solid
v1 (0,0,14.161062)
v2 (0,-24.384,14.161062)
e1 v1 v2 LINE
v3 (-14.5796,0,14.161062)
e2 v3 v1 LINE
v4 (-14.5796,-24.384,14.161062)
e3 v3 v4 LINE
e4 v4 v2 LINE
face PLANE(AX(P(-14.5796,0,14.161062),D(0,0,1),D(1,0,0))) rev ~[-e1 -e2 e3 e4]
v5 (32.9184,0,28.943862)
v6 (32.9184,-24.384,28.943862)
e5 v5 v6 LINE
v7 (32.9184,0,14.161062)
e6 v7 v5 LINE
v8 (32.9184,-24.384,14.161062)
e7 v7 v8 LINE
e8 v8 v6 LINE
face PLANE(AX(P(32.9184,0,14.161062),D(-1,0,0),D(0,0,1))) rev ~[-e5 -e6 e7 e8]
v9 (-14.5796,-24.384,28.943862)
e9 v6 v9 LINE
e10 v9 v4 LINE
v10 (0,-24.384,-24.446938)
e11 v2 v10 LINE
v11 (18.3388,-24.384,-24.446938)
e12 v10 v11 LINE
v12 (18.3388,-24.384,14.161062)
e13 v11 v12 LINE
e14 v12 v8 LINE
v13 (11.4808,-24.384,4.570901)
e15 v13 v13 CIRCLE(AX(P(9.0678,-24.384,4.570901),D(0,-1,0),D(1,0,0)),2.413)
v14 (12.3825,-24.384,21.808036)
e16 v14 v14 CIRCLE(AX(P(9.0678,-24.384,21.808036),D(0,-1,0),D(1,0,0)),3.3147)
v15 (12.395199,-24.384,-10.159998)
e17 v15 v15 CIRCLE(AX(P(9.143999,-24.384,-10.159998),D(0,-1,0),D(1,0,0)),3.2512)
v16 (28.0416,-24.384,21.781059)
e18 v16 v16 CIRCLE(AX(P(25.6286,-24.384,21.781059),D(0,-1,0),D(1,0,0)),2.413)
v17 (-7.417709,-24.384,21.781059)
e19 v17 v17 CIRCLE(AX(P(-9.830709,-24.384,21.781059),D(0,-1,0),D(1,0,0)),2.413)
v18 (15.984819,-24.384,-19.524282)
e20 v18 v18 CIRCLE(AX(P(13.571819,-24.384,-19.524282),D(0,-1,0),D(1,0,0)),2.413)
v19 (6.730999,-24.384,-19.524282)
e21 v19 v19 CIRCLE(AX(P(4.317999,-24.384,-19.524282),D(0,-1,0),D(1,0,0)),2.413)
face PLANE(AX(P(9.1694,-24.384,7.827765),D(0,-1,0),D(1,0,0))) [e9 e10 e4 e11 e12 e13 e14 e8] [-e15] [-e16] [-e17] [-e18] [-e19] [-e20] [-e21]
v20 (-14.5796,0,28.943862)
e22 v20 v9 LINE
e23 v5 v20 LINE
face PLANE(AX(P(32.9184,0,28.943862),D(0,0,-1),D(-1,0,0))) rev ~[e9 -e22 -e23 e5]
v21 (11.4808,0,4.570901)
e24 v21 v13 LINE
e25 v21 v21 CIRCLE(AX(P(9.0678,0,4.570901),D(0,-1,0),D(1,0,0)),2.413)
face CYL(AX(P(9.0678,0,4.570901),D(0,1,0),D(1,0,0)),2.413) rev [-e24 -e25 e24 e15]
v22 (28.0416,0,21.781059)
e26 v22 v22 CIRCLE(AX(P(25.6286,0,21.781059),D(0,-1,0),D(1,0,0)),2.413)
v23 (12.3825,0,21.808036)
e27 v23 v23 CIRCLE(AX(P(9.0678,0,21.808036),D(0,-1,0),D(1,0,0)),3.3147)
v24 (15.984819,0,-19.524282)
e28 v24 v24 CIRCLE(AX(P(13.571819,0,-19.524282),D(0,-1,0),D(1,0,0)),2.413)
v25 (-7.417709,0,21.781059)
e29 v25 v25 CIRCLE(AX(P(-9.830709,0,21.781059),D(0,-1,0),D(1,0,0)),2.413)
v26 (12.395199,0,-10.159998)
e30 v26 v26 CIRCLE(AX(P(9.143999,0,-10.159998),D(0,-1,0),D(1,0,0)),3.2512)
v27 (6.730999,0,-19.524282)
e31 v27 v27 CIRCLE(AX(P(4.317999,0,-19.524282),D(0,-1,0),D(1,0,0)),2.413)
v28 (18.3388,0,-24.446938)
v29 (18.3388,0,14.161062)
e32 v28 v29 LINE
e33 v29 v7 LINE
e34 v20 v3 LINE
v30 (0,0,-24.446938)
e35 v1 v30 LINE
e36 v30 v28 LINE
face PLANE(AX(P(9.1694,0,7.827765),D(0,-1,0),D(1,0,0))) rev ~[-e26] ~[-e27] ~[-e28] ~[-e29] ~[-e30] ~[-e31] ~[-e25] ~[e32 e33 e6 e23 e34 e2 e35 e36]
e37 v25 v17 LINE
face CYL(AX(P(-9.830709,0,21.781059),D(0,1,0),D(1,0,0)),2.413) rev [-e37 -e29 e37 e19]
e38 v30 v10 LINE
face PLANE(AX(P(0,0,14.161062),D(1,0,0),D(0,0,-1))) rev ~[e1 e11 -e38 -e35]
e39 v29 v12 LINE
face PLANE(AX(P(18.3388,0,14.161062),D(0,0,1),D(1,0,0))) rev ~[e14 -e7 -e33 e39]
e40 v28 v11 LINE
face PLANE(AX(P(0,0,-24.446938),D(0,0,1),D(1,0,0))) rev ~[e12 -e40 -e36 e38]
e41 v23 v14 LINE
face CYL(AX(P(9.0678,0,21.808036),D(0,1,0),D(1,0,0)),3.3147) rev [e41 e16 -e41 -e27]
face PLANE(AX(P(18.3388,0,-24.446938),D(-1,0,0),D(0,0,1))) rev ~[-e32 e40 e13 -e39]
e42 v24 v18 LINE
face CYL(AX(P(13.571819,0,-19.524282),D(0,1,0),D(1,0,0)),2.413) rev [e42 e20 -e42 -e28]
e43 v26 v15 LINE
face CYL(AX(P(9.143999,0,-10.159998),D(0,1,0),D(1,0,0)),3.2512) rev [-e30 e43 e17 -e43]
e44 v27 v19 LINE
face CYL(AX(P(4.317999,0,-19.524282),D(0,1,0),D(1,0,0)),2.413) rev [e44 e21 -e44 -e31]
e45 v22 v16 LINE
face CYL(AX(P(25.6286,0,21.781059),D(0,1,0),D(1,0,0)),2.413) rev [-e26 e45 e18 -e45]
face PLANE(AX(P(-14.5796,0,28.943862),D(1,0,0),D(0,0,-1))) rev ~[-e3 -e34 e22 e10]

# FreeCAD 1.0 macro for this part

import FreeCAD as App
import Part
import Sketcher
Q = App.Units.Quantity

doc = App.newDocument("Part")
body = doc.addObject("PartDesign::Body", "Body")

# Sketch on XZ plane
sketch1 = doc.addObject("Sketcher::SketchObject", "Sketch")
body.addObject(sketch1)
sketch1.AttachmentSupport = (doc.XZ_Plane, [""])
sketch1.MapMode = "FlatFace"
sketch1.addGeometry([
    Part.LineSegment(App.Vector(32.9, 28.9, 0), App.Vector(-14.6, 28.9, 0)),  # 0
    Part.LineSegment(App.Vector(-14.6, 28.9, 0), App.Vector(-14.6, 14.2, 0)),  # 1
    Part.LineSegment(App.Vector(-14.6, 14.2, 0), App.Vector(0, 14.2, 0)),  # 2
    Part.LineSegment(App.Vector(0, 14.2, 0), App.Vector(0, -24.4, 0)),  # 3
    Part.LineSegment(App.Vector(0, -24.4, 0), App.Vector(18.3, -24.4, 0)),  # 4
    Part.LineSegment(App.Vector(18.3, -24.4, 0), App.Vector(18.3, 14.2, 0)),  # 5
    Part.LineSegment(App.Vector(18.3, 14.2, 0), App.Vector(32.9, 14.2, 0)),  # 6
    Part.LineSegment(App.Vector(32.9, 14.2, 0), App.Vector(32.9, 28.9, 0)),  # 7
    Part.Circle(App.Vector(4.3, -19.5, 0), App.Vector(0, 0, 1), 2.4),  # 8
    Part.Circle(App.Vector(13.6, -19.5, 0), App.Vector(0, 0, 1), 2.4),  # 9
    Part.Circle(App.Vector(9.1, -10.2, 0), App.Vector(0, 0, 1), 3.3),  # 10
    Part.Circle(App.Vector(-9.8, 21.8, 0), App.Vector(0, 0, 1), 2.4),  # 11
    Part.Circle(App.Vector(9.1, 4.6, 0), App.Vector(0, 0, 1), 2.4),  # 12
    Part.Circle(App.Vector(9.1, 21.8, 0), App.Vector(0, 0, 1), 3.3),  # 13
    Part.Circle(App.Vector(25.6, 21.8, 0), App.Vector(0, 0, 1), 2.4),  # 14
], False)
sketch1.addConstraint([
    Sketcher.Constraint("Coincident", 0, 2, 1, 1),
    Sketcher.Constraint("Coincident", 1, 2, 2, 1),
    Sketcher.Constraint("Coincident", 2, 2, 3, 1),
    Sketcher.Constraint("Coincident", 3, 2, 4, 1),
    Sketcher.Constraint("Coincident", 4, 2, 5, 1),
    Sketcher.Constraint("Coincident", 5, 2, 6, 1),
    Sketcher.Constraint("Coincident", 6, 2, 7, 1),
    Sketcher.Constraint("Coincident", 7, 2, 0, 1),
    Sketcher.Constraint("Horizontal", 0),
    Sketcher.Constraint("Vertical", 1),
    Sketcher.Constraint("Horizontal", 2),
    Sketcher.Constraint("Vertical", 3),
    Sketcher.Constraint("Horizontal", 4),
    Sketcher.Constraint("Vertical", 5),
    Sketcher.Constraint("Horizontal", 6),
    Sketcher.Constraint("Vertical", 7),
    Sketcher.Constraint("Equal", 8, 9),
    Sketcher.Constraint("Equal", 9, 11),
    Sketcher.Constraint("Equal", 11, 12),
    Sketcher.Constraint("Equal", 12, 14),
    Sketcher.Constraint("PointOnObject", 2, 2, -2),
    Sketcher.Constraint("Horizontal", 8, 3, 9, 3),
    Sketcher.Constraint("Horizontal", 11, 3, 14, 3),
    Sketcher.Constraint("Horizontal", 2, 2, 5, 2),
    Sketcher.Constraint("Vertical", 12, 3, 13, 3),
    Sketcher.Constraint("Equal", 2, 6),
    Sketcher.Constraint("Diameter", 8, Q("0.19 in")),
    Sketcher.Constraint("Diameter", 10, Q("0.256 in")),
    Sketcher.Constraint("Diameter", 13, Q("0.261 in")),
    Sketcher.Constraint("DistanceX", 0, 2, 0, 1, Q("1.87 in")),
    Sketcher.Constraint("DistanceY", 3, 2, 3, 1, Q("1.52 in")),
    Sketcher.Constraint("DistanceY", 10, 3, -1, 1, Q("0.3999999 in")),
    Sketcher.Constraint("DistanceY", 1, 2, 11, 3, Q("0.2999999 in")),
    Sketcher.Constraint("DistanceX", 2, 1, 2, 2, Q("0.574 in")),
    Sketcher.Constraint("DistanceY", 1, 2, 1, 1, Q("0.582 in")),
    Sketcher.Constraint("DistanceX", -1, 1, 8, 3, Q("0.17 in")),
    Sketcher.Constraint("DistanceX", -1, 1, 10, 3, Q("0.36 in")),
    Sketcher.Constraint("DistanceX", -1, 1, 12, 3, Q("0.357 in")),
    Sketcher.Constraint("DistanceX", -1, 1, 14, 3, Q("1.009 in")),
    Sketcher.Constraint("DistanceY", -1, 1, 12, 3, 4.570901),
    Sketcher.Constraint("DistanceY", 8, 3, -1, 1, 19.524282),
    Sketcher.Constraint("DistanceX", -1, 1, 9, 3, 13.571819),
    Sketcher.Constraint("DistanceX", 11, 3, -1, 1, 9.830709),
    Sketcher.Constraint("DistanceY", -1, 1, 11, 3, 21.781059),
    Sketcher.Constraint("DistanceY", -1, 1, 13, 3, 21.808036),
])
pad1 = doc.addObject("PartDesign::Pad", "Pad")
body.addObject(pad1)
pad1.Profile = sketch1
pad1.Length = Q("0.96 in")

doc.recompute()
